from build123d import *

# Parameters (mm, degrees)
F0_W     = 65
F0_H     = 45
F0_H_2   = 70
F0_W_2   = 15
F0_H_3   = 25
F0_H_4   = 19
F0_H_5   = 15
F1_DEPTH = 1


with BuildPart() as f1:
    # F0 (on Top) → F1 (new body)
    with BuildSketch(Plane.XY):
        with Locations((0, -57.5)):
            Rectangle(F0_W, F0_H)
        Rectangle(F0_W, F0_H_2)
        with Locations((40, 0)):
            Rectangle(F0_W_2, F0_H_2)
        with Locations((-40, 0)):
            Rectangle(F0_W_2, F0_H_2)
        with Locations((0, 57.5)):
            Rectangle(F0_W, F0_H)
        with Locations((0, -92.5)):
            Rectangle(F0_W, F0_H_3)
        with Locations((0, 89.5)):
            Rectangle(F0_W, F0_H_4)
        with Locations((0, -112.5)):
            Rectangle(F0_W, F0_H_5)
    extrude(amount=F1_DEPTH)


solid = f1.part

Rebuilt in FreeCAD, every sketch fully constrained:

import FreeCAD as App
import Part
import Sketcher


def add_polygon(sketch, points):
    """Adds a closed chain of lines whose ends are joined by coincident constraints."""
    first, n = sketch.GeometryCount, len(points)
    for a, b in zip(points, points[1:] + points[:1]):
        sketch.addGeometry(Part.LineSegment(App.Vector(*a, 0), App.Vector(*b, 0)), False)
    for i in range(n):
        sketch.addConstraint(Sketcher.Constraint("Coincident", first + i, 2, first + (i + 1) % n, 1))

doc = App.newDocument("Part")
body = doc.addObject("PartDesign::Body", "Body")

# Sketch on XY plane
sketch1 = doc.addObject("Sketcher::SketchObject", "Sketch")
body.addObject(sketch1)
sketch1.AttachmentSupport = (doc.XY_Plane, [""])
sketch1.MapMode = "FlatFace"
add_polygon(sketch1, [(32, -35), (48, -35), (48, 35), (32, 35), (32, 99), (-32, 99), (-32, 35), (-48, 35), (-48, -35), (-32, -35), (-32, -120), (32, -120)])  # lines 0-11
sketch1.addConstraint(Sketcher.Constraint("Horizontal", 0))
sketch1.addConstraint(Sketcher.Constraint("Vertical", 1))
sketch1.addConstraint(Sketcher.Constraint("Horizontal", 2))
sketch1.addConstraint(Sketcher.Constraint("Vertical", 3))
sketch1.addConstraint(Sketcher.Constraint("Horizontal", 4))
sketch1.addConstraint(Sketcher.Constraint("Vertical", 5))
sketch1.addConstraint(Sketcher.Constraint("Horizontal", 6))
sketch1.addConstraint(Sketcher.Constraint("Vertical", 7))
sketch1.addConstraint(Sketcher.Constraint("Horizontal", 8))
sketch1.addConstraint(Sketcher.Constraint("Vertical", 9))
sketch1.addConstraint(Sketcher.Constraint("Horizontal", 10))
sketch1.addConstraint(Sketcher.Constraint("Vertical", 11))
sketch1.addConstraint(Sketcher.Constraint("Symmetric", 0, 2, 6, 2, -1, 1))
sketch1.addConstraint(Sketcher.Constraint("Symmetric", 2, 2, 8, 2, -1, 1))
sketch1.addConstraint(Sketcher.Constraint("Symmetric", 2, 2, 5, 2, -2))
sketch1.addConstraint(Sketcher.Constraint("Vertical", 3, 2, 10, 2))
sketch1.addConstraint(Sketcher.Constraint("DistanceX", 0, 1, 0, 2, 15.0))
sketch1.addConstraint(Sketcher.Constraint("DistanceX", 4, 2, 4, 1, 65.0))
sketch1.addConstraint(Sketcher.Constraint("DistanceY", 1, 1, 1, 2, 70.0))
sketch1.addConstraint(Sketcher.Constraint("DistanceY", 3, 1, 3, 2, 64.0))
sketch1.addConstraint(Sketcher.Constraint("DistanceY", 9, 2, 9, 1, 85.0))
pad1 = doc.addObject("PartDesign::Pad", "Pad")
body.addObject(pad1)
pad1.Profile = sketch1
pad1.Length = 1

doc.recompute()
